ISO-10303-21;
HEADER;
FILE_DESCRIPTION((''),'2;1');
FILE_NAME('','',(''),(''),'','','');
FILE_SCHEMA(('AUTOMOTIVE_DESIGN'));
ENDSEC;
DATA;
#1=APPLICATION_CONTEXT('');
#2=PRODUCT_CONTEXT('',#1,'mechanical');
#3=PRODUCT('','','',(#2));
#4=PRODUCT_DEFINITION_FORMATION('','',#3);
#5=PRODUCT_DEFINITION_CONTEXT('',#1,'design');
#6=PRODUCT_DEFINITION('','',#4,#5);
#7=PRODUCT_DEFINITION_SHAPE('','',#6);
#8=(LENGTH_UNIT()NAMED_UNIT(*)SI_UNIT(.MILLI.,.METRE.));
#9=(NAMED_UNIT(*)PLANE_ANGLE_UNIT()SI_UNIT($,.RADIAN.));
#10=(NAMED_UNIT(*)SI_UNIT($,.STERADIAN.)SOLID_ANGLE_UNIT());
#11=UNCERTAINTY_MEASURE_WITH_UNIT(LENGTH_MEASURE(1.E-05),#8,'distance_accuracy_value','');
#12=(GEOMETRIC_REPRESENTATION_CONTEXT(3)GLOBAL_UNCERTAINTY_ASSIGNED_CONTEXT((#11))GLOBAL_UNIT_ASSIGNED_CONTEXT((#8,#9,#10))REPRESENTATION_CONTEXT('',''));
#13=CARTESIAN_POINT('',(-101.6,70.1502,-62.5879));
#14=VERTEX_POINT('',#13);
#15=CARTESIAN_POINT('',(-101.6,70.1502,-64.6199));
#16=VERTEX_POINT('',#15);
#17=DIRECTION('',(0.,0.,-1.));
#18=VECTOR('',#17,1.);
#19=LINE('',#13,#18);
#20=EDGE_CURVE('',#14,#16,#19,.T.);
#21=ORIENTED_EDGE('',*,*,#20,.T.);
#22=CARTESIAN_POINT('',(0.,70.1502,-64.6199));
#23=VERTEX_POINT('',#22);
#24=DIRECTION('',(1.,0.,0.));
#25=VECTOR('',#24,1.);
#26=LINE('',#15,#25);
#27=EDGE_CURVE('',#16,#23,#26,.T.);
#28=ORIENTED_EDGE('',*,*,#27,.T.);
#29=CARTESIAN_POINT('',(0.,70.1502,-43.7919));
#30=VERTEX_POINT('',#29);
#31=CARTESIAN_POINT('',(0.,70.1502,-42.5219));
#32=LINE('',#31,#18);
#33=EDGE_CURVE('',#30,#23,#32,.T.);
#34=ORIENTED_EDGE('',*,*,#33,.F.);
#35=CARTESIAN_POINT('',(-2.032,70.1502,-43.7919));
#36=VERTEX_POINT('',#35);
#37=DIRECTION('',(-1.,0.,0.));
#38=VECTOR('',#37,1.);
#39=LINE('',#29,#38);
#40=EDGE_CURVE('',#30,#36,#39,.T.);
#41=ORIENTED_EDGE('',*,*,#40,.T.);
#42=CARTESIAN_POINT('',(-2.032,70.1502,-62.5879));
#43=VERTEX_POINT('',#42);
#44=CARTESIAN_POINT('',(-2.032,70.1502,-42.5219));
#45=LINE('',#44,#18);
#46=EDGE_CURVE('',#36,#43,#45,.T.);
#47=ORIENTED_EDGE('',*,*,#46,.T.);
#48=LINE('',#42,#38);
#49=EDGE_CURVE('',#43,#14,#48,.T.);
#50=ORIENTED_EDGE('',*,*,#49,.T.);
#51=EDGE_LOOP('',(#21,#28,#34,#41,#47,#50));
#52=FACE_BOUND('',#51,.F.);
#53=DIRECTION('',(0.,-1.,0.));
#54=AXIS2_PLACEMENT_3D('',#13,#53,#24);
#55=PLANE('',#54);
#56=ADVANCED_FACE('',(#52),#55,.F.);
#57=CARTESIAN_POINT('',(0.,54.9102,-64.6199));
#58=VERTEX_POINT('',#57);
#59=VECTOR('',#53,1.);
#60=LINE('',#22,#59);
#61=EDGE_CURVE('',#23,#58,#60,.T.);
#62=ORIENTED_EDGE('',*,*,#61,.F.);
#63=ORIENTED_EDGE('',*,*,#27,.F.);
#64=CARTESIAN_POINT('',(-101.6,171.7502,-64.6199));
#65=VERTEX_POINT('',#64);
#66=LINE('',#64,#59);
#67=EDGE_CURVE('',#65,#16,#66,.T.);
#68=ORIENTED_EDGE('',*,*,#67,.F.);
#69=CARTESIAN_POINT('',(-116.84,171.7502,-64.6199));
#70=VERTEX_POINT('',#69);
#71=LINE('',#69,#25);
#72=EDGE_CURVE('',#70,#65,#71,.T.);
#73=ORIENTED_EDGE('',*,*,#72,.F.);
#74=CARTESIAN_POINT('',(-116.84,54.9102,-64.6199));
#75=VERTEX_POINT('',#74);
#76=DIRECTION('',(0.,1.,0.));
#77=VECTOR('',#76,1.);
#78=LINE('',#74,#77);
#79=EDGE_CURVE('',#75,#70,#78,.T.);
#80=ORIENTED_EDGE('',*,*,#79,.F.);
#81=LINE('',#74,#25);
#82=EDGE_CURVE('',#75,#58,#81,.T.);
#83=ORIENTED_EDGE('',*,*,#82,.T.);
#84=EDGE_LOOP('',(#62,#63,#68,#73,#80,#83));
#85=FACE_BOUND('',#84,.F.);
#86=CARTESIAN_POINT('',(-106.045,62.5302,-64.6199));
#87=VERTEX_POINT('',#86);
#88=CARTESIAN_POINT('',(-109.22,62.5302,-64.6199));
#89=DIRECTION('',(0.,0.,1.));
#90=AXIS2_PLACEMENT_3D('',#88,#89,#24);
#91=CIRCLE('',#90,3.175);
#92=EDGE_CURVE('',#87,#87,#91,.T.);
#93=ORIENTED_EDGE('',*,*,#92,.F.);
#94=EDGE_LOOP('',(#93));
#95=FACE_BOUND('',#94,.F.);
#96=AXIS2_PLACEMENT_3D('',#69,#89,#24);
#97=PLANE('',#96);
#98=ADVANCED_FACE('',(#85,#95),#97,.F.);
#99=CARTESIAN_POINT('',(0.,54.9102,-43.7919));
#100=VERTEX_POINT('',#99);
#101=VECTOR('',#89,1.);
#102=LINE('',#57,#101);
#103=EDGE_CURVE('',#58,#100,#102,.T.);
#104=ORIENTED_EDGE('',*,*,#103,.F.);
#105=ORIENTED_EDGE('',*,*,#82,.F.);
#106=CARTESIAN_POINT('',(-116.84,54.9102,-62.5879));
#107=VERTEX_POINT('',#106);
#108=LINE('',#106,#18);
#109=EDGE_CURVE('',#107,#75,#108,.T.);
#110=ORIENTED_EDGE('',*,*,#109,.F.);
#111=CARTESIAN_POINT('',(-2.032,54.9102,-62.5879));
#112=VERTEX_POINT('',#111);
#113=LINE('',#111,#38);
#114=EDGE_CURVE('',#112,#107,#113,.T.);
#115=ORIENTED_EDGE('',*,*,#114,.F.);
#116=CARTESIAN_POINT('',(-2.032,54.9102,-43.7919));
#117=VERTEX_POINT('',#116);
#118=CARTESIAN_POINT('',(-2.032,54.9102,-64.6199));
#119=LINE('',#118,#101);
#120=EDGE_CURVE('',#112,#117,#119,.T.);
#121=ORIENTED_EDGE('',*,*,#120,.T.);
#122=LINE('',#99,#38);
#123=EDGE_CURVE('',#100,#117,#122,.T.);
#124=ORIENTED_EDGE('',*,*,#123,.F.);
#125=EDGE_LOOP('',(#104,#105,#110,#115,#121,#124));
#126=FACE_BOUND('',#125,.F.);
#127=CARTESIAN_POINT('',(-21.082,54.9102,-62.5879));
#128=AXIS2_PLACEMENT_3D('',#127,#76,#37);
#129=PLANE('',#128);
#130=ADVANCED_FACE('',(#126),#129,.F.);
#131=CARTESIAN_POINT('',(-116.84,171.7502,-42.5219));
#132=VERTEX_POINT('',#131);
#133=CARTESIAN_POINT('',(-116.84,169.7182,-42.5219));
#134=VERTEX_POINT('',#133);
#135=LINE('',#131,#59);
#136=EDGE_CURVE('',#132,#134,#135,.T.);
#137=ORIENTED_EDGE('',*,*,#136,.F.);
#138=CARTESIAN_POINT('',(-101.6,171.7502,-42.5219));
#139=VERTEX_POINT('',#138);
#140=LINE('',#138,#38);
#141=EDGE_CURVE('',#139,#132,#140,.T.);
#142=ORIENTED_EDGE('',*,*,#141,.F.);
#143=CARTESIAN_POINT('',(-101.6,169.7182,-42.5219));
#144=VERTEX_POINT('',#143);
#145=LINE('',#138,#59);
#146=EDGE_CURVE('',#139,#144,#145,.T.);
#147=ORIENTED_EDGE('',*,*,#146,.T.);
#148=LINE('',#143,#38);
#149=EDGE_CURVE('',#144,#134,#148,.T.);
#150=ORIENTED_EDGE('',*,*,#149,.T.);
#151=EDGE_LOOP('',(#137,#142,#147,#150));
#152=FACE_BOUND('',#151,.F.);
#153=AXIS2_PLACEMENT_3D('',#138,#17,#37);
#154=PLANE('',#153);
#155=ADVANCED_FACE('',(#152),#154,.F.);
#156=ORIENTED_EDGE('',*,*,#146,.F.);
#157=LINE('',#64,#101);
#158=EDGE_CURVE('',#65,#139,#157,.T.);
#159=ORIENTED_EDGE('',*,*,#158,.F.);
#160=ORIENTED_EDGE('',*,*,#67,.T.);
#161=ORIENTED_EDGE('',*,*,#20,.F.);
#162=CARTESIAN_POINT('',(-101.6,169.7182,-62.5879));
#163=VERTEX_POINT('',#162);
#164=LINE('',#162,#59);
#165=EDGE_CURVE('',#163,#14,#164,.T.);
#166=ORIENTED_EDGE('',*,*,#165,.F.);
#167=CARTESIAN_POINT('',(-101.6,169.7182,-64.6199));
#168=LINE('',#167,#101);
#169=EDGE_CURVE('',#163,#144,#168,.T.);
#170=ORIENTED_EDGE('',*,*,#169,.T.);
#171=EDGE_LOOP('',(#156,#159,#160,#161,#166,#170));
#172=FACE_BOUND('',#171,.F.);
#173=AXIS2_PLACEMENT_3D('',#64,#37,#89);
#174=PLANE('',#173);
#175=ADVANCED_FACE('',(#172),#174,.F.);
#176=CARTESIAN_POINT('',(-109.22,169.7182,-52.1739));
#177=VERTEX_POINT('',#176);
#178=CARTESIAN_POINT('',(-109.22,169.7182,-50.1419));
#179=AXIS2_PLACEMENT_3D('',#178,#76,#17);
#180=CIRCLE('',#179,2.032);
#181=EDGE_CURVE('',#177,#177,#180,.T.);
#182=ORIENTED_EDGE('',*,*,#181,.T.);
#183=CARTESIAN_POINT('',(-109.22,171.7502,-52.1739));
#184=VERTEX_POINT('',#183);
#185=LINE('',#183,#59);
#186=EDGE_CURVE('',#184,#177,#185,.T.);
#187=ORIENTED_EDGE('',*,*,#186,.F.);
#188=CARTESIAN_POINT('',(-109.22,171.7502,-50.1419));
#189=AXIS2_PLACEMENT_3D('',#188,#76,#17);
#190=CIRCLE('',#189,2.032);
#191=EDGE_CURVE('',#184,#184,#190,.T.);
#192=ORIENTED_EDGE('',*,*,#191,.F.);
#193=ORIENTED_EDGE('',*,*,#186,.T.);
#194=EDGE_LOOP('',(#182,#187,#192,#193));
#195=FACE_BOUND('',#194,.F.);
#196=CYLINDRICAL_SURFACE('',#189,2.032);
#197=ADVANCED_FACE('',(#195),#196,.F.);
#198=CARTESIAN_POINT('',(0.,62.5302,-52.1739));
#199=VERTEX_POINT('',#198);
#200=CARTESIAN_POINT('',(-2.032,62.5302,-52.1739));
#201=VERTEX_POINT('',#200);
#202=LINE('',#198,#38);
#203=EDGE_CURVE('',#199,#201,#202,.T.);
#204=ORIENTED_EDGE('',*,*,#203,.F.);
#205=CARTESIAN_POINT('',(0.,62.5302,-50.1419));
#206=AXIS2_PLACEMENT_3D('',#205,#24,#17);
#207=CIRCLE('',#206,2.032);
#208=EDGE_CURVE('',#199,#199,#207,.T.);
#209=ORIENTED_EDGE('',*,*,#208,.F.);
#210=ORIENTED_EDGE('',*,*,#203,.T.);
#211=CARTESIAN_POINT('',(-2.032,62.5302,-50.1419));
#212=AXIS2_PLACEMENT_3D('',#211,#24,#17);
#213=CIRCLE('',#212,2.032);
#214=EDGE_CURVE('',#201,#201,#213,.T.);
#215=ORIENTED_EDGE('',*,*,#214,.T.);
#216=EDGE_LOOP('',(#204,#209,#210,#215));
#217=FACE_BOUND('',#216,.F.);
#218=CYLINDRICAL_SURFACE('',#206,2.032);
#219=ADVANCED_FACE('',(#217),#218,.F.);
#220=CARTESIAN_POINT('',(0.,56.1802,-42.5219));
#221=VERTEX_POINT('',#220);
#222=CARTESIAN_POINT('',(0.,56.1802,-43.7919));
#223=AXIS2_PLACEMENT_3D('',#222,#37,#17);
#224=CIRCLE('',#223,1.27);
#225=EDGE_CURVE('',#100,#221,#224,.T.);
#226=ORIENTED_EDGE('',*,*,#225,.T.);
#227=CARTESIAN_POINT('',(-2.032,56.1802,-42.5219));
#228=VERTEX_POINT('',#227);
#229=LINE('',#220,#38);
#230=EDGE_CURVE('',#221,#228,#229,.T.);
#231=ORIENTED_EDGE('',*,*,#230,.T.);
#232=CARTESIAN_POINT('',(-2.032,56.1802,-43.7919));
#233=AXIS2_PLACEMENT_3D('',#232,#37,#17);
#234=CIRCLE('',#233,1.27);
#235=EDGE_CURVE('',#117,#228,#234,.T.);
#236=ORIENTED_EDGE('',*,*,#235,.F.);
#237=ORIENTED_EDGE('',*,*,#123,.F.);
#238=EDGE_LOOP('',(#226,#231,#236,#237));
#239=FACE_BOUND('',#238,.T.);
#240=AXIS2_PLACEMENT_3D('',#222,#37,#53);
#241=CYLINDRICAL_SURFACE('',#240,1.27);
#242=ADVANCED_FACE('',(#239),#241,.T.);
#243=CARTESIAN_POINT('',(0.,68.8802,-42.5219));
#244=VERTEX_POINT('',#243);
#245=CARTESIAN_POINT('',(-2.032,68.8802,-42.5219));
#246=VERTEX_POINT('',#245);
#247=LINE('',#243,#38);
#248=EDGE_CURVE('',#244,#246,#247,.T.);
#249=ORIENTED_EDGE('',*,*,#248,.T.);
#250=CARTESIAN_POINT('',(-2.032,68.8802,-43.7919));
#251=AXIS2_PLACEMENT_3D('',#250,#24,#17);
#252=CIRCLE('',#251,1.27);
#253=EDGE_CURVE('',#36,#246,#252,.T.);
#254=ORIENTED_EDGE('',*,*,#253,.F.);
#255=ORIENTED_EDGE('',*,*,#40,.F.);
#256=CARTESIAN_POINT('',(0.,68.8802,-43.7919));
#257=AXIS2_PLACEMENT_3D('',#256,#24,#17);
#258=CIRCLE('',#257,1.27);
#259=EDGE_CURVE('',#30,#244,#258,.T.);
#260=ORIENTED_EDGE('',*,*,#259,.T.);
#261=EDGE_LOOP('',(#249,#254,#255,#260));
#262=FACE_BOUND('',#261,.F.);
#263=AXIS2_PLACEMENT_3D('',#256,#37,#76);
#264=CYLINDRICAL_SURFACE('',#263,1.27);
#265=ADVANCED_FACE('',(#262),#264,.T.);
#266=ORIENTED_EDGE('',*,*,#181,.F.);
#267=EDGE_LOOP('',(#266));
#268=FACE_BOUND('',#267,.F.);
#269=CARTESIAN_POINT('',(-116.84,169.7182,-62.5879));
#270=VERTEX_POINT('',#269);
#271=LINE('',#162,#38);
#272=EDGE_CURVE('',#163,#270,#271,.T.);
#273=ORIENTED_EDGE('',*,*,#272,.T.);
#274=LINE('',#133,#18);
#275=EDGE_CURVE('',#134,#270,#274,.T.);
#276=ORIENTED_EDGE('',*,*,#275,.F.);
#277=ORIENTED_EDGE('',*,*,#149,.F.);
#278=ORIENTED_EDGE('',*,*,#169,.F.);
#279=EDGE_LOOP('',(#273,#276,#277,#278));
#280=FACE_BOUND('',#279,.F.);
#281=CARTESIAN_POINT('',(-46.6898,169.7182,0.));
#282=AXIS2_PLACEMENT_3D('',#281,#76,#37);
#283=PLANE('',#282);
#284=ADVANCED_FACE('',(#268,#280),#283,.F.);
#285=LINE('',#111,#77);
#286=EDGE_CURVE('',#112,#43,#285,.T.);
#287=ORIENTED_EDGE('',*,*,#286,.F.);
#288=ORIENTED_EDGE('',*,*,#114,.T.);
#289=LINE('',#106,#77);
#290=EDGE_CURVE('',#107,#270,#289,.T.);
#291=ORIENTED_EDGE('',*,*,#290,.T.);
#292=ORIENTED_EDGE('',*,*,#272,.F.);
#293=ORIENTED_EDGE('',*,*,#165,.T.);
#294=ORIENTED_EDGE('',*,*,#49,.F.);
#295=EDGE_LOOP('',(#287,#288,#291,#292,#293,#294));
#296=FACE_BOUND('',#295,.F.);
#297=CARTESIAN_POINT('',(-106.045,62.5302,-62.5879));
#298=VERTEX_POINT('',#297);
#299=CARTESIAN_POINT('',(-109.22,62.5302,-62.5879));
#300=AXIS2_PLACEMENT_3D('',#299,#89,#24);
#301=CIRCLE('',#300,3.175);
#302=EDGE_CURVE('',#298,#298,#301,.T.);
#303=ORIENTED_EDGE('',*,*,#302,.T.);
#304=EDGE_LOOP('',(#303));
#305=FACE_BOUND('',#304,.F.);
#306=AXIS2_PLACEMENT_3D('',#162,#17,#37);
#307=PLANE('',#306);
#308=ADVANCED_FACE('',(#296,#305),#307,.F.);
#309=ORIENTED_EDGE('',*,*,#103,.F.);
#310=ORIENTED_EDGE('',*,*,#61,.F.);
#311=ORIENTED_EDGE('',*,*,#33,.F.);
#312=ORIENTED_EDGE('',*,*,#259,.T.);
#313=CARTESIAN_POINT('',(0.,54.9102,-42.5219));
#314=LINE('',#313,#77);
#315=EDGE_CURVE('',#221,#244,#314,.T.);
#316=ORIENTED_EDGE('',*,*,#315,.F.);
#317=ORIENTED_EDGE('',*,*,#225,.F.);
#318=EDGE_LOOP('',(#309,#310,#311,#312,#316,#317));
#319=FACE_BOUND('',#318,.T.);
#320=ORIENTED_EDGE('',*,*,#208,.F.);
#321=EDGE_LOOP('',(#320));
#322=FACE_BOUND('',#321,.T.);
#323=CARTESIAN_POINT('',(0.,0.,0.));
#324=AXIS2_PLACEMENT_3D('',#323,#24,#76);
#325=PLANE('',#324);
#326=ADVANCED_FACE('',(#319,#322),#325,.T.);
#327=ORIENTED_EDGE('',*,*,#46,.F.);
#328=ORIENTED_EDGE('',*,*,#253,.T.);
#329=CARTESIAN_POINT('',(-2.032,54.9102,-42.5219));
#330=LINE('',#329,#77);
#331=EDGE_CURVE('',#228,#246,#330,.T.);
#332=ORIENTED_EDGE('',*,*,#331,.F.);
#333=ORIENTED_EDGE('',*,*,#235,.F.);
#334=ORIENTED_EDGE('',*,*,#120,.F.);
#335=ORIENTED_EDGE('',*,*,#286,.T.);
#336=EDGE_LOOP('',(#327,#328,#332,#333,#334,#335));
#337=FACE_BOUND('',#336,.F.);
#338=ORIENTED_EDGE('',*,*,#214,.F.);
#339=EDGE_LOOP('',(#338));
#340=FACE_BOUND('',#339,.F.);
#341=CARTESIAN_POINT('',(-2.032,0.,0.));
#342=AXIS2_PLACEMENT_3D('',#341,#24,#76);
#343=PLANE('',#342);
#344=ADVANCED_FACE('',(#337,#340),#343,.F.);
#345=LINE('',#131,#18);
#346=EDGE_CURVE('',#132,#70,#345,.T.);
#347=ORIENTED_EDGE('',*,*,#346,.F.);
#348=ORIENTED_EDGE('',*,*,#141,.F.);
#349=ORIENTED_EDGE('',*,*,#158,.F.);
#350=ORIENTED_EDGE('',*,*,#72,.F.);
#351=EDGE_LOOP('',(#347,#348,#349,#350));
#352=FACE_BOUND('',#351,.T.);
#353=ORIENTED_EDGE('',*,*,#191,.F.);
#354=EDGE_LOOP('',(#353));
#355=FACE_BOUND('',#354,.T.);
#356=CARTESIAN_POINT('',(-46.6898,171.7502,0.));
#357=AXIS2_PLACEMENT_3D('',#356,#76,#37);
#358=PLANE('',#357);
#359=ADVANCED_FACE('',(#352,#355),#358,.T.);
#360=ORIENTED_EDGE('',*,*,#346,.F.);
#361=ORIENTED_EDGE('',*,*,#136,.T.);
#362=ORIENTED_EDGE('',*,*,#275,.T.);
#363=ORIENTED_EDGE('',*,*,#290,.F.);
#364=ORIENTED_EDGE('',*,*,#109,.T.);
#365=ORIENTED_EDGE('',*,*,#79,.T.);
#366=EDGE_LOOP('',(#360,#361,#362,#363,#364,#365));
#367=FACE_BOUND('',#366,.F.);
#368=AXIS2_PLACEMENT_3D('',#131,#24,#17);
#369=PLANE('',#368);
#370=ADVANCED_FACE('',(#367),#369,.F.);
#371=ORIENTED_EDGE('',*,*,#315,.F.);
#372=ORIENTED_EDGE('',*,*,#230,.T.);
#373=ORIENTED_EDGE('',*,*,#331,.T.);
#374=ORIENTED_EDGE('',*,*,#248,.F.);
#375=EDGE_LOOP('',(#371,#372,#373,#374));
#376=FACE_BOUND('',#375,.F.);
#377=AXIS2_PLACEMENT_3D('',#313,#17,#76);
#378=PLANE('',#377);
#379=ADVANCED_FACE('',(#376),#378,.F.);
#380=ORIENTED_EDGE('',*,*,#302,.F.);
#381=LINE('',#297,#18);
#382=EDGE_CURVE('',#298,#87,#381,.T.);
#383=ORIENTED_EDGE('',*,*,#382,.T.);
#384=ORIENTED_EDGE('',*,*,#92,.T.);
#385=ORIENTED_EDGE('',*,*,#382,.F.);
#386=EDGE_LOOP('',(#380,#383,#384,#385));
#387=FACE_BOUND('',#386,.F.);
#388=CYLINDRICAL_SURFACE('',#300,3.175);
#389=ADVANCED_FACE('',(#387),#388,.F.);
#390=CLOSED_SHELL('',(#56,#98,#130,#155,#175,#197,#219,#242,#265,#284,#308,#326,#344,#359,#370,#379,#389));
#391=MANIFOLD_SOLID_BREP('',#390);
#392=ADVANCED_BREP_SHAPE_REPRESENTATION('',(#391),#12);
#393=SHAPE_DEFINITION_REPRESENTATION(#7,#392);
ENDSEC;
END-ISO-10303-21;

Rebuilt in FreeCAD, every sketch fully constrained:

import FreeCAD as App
import Part
import Sketcher
Q = App.Units.Quantity


def edges_at(feature, points):
    """Names of the edges that pass closest to the given points."""
    edges = feature.Shape.Edges
    near = lambda p: min(range(len(edges)), key=lambda i: edges[i].distToShape(Part.Vertex(*p))[0])
    return sorted({f"Edge{near(p) + 1}" for p in points})

doc = App.newDocument("Part")
body = doc.addObject("PartDesign::Body", "Body")

# Sketch on YZ plane
sketch1 = body.newObject("Sketcher::SketchObject", "Sketch")
sketch1.AttachmentSupport = (doc.getObject("YZ_Plane"), [""])
sketch1.MapMode = "FlatFace"
sketch1.addGeometry([
    Part.LineSegment(App.Vector(55, -65, 0), App.Vector(70, -65, 0)),
    Part.LineSegment(App.Vector(70, -65, 0), App.Vector(70, -43, 0)),
    Part.LineSegment(App.Vector(70, -43, 0), App.Vector(55, -43, 0)),
    Part.LineSegment(App.Vector(55, -43, 0), App.Vector(55, -65, 0)),
], False)
sketch1.addConstraint([
    Sketcher.Constraint("Coincident", 0, 2, 1, 1),
    Sketcher.Constraint("Coincident", 1, 2, 2, 1),
    Sketcher.Constraint("Coincident", 2, 2, 3, 1),
    Sketcher.Constraint("Coincident", 3, 2, 0, 1),
    Sketcher.Constraint("Horizontal", 0),
    Sketcher.Constraint("Vertical", 1),
    Sketcher.Constraint("Horizontal", 2),
    Sketcher.Constraint("Vertical", 3),
    Sketcher.Constraint("DistanceX", 0, 1, 0, 2, Q("0.6 in")),
    Sketcher.Constraint("DistanceY", 1, 1, 1, 2, Q("0.87 in")),
    Sketcher.Constraint("DistanceY", 0, 2, -1, 1, Q("2.5441 in")),
    Sketcher.Constraint("DistanceX", -1, 1, 0, 2, 70.1502),
])
pad1 = body.newObject("PartDesign::Pad", "Pad")
pad1.Profile = sketch1
pad1.Length = Q("0.08 in")
pad1.Reversed = True

# Sketch on YZ plane
sketch2 = body.newObject("Sketcher::SketchObject", "Sketch001")
sketch2.AttachmentSupport = (doc.getObject("YZ_Plane"), [""])
sketch2.MapMode = "FlatFace"
sketch2.AttachmentOffset = App.Placement(App.Vector(0, 0, -0.08 * 25.4), App.Rotation())
sketch2.addGeometry([
    Part.LineSegment(App.Vector(70.2, -64.6, 0), App.Vector(54.9, -64.6, 0)),
    Part.LineSegment(App.Vector(54.9, -64.6, 0), App.Vector(54.9, -62.6, 0)),
    Part.LineSegment(App.Vector(54.9, -62.6, 0), App.Vector(70.2, -62.6, 0)),
    Part.LineSegment(App.Vector(70.2, -62.6, 0), App.Vector(70.2, -64.6, 0)),
], False)
sketch2.addConstraint([
    Sketcher.Constraint("Coincident", 0, 2, 1, 1),
    Sketcher.Constraint("Coincident", 1, 2, 2, 1),
    Sketcher.Constraint("Coincident", 2, 2, 3, 1),
    Sketcher.Constraint("Coincident", 3, 2, 0, 1),
    Sketcher.Constraint("Horizontal", 0),
    Sketcher.Constraint("Vertical", 1),
    Sketcher.Constraint("Horizontal", 2),
    Sketcher.Constraint("Vertical", 3),
    Sketcher.Constraint("DistanceY", 1, 1, 1, 2, Q("0.08 in")),
    Sketcher.Constraint("DistanceX", 0, 2, 0, 1, Q("0.6 in")),
    Sketcher.Constraint("DistanceY", 0, 2, -1, 1, Q("2.5441 in")),
    Sketcher.Constraint("DistanceX", -1, 1, 0, 2, 54.9102),
])
pad2 = body.newObject("PartDesign::Pad", "Pad001")
pad2.Profile = sketch2
pad2.Length = Q("0.75 in")
pad2.Reversed = True

# Sketch on YZ plane
sketch3 = body.newObject("Sketcher::SketchObject", "Sketch002")
sketch3.AttachmentSupport = (doc.getObject("YZ_Plane"), [""])
sketch3.MapMode = "FlatFace"
sketch3.addGeometry(Part.Circle(App.Vector(62.5, -50.1, 0), App.Vector(0, 0, 1), 2), False)
sketch3.addConstraint([
    Sketcher.Constraint("Diameter", 0, Q("0.16 in")),
    Sketcher.Constraint("DistanceY", 0, 3, -1, 1, Q("1.9741 in")),
    Sketcher.Constraint("DistanceX", -1, 1, 0, 3, 62.5302),
])
pocket1 = body.newObject("PartDesign::Pocket", "Pocket")
pocket1.Profile = sketch3
pocket1.Type = "UpToFirst"
doc.recompute()

fillet = body.newObject("PartDesign::Fillet", "Fillet")
fillet.Base = (pocket1, edges_at(pocket1, [(-1.016, 54.91, -42.522), (-1.016, 70.15, -42.522)]))
fillet.Radius = Q("0.05 in")

# Sketch on XY plane
sketch4 = body.newObject("Sketcher::SketchObject", "Sketch003")
sketch4.AttachmentSupport = (doc.getObject("XY_Plane"), [""])
sketch4.MapMode = "FlatFace"
sketch4.AttachmentOffset = App.Placement(App.Vector(0, 0, -2.4640906 * 25.4), App.Rotation())
sketch4.addGeometry([
    Part.LineSegment(App.Vector(-116.8, 54.9, 0), App.Vector(-21.1, 54.9, 0)),  # 0
    Part.LineSegment(App.Vector(-21.1, 54.9, 0), App.Vector(-21.1, 70.2, 0)),  # 1
    Part.LineSegment(App.Vector(-21.1, 70.2, 0), App.Vector(-101.6, 70.2, 0)),  # 2
    Part.LineSegment(App.Vector(-101.6, 70.2, 0), App.Vector(-101.6, 150.7, 0)),  # 3
    Part.LineSegment(App.Vector(-101.6, 150.7, 0), App.Vector(-116.8, 150.7, 0)),  # 4
    Part.LineSegment(App.Vector(-116.8, 150.7, 0), App.Vector(-116.8, 54.9, 0)),  # 5
    Part.Circle(App.Vector(-109.2, 62.5, 0), App.Vector(0, 0, 1), 3.2),  # 6
], False)
sketch4.addConstraint([
    Sketcher.Constraint("Coincident", 0, 2, 1, 1),
    Sketcher.Constraint("Coincident", 1, 2, 2, 1),
    Sketcher.Constraint("Coincident", 2, 2, 3, 1),
    Sketcher.Constraint("Coincident", 3, 2, 4, 1),
    Sketcher.Constraint("Coincident", 4, 2, 5, 1),
    Sketcher.Constraint("Coincident", 5, 2, 0, 1),
    Sketcher.Constraint("Horizontal", 0),
    Sketcher.Constraint("Vertical", 1),
    Sketcher.Constraint("Horizontal", 2),
    Sketcher.Constraint("Vertical", 3),
    Sketcher.Constraint("Horizontal", 4),
    Sketcher.Constraint("Vertical", 5),
    Sketcher.Constraint("Equal", 4, 1),
    Sketcher.Constraint("Equal", 2, 3),
    Sketcher.Constraint("Diameter", 6, Q("0.25 in")),
    Sketcher.Constraint("DistanceX", 4, 2, 4, 1, Q("0.6 in")),
    Sketcher.Constraint("DistanceX", 6, 3, -1, 1, Q("4.3 in")),
    Sketcher.Constraint("DistanceX", 6, 3, 0, 2, Q("3.47 in")),
    Sketcher.Constraint("DistanceY", 6, 3, 3, 2, Q("3.47 in")),
    Sketcher.Constraint("DistanceX", 2, 2, -1, 1, Q("4 in")),
    Sketcher.Constraint("DistanceY", -1, 1, 6, 3, 62.5302),
])
pad3 = body.newObject("PartDesign::Pad", "Pad002")
pad3.Profile = sketch4
pad3.Length = Q("0.08 in")
pad3.Reversed = True
doc.recompute()

datumline = body.newObject("PartDesign::Line", "DatumLine")
datumline.Placement = App.Placement(App.Vector(-109.22, 62.5302, 0), App.Rotation(App.Vector(0, 0, 1), App.Vector(0, 0, 1)))
polarpattern = body.newObject("PartDesign::PolarPattern", "PolarPattern")
polarpattern.Originals = [pad2, pad1, pocket1]
polarpattern.Axis = (datumline, [""])
polarpattern.Angle = 90
polarpattern.Occurrences = 2
body.Tip = polarpattern

doc.recompute()
